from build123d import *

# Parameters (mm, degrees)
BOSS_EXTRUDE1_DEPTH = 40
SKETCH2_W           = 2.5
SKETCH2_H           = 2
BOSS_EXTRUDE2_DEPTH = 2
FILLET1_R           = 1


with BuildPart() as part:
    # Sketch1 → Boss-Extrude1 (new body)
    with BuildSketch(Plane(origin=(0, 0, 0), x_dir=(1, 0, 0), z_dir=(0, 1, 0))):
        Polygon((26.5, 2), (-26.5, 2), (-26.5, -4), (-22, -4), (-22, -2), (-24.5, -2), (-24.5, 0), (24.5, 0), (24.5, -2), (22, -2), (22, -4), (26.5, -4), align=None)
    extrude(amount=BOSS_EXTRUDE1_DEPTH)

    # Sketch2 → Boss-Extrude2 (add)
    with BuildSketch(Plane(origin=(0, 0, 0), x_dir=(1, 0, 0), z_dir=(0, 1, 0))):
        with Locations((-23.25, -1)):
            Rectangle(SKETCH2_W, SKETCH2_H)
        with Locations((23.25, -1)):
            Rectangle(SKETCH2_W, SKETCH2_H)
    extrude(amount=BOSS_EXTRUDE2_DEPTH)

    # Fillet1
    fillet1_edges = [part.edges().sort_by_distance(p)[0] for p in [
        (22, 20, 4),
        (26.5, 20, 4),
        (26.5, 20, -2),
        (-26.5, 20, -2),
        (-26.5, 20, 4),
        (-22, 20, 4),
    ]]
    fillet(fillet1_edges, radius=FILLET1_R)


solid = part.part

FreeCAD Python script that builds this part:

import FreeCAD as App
import Part
import Sketcher
from FreeCAD import Vector
Q = App.Units.Quantity


def edges_at(feature, points):
    """Names of the edges that pass closest to the given points."""
    edges = feature.Shape.Edges
    near = lambda p: min(range(len(edges)), key=lambda i: edges[i].distToShape(Part.Vertex(*p))[0])
    return sorted({f"Edge{near(p) + 1}" for p in points})

doc = App.newDocument("Part")
body = doc.addObject("PartDesign::Body", "Body")

sketch1 = doc.addObject("Sketcher::SketchObject", "Sketch")
body.addObject(sketch1)
sketch1.AttachmentSupport = (doc.XZ_Plane, [""])
sketch1.MapMode = "FlatFace"
sketch1.addGeometry(Part.LineSegment(Vector(26.5, -2, 0), Vector(-26.5, -2, 0)), False)
sketch1.addGeometry(Part.LineSegment(Vector(-26.5, -2, 0), Vector(-26.5, 4, 0)), False)
sketch1.addGeometry(Part.LineSegment(Vector(-26.5, 4, 0), Vector(-22, 4, 0)), False)
sketch1.addGeometry(Part.LineSegment(Vector(-22, 4, 0), Vector(-22, 2, 0)), False)
sketch1.addGeometry(Part.LineSegment(Vector(-22, 2, 0), Vector(-24.5, 2, 0)), False)
sketch1.addGeometry(Part.LineSegment(Vector(-24.5, 2, 0), Vector(-24.5, 0, 0)), False)
sketch1.addGeometry(Part.LineSegment(Vector(-24.5, 0, 0), Vector(24.5, 0, 0)), False)
sketch1.addGeometry(Part.LineSegment(Vector(24.5, 0, 0), Vector(24.5, 2, 0)), False)
sketch1.addGeometry(Part.LineSegment(Vector(24.5, 2, 0), Vector(22, 2, 0)), False)
sketch1.addGeometry(Part.LineSegment(Vector(22, 2, 0), Vector(22, 4, 0)), False)
sketch1.addGeometry(Part.LineSegment(Vector(22, 4, 0), Vector(26.5, 4, 0)), False)
sketch1.addGeometry(Part.LineSegment(Vector(26.5, 4, 0), Vector(26.5, -2, 0)), False)
sketch1.addConstraint(Sketcher.Constraint("Coincident", 0, 2, 1, 1))
sketch1.addConstraint(Sketcher.Constraint("Coincident", 1, 2, 2, 1))
sketch1.addConstraint(Sketcher.Constraint("Coincident", 2, 2, 3, 1))
sketch1.addConstraint(Sketcher.Constraint("Coincident", 3, 2, 4, 1))
sketch1.addConstraint(Sketcher.Constraint("Coincident", 4, 2, 5, 1))
sketch1.addConstraint(Sketcher.Constraint("Coincident", 5, 2, 6, 1))
sketch1.addConstraint(Sketcher.Constraint("Coincident", 6, 2, 7, 1))
sketch1.addConstraint(Sketcher.Constraint("Coincident", 7, 2, 8, 1))
sketch1.addConstraint(Sketcher.Constraint("Coincident", 8, 2, 9, 1))
sketch1.addConstraint(Sketcher.Constraint("Coincident", 9, 2, 10, 1))
sketch1.addConstraint(Sketcher.Constraint("Coincident", 10, 2, 11, 1))
sketch1.addConstraint(Sketcher.Constraint("Coincident", 11, 2, 0, 1))
sketch1.addConstraint(Sketcher.Constraint("Horizontal", 0))
sketch1.addConstraint(Sketcher.Constraint("Vertical", 1))
sketch1.addConstraint(Sketcher.Constraint("Horizontal", 2))
sketch1.addConstraint(Sketcher.Constraint("Vertical", 3))
sketch1.addConstraint(Sketcher.Constraint("Horizontal", 4))
sketch1.addConstraint(Sketcher.Constraint("Vertical", 5))
sketch1.addConstraint(Sketcher.Constraint("Horizontal", 6))
sketch1.addConstraint(Sketcher.Constraint("Vertical", 7))
sketch1.addConstraint(Sketcher.Constraint("Horizontal", 8))
sketch1.addConstraint(Sketcher.Constraint("Vertical", 9))
sketch1.addConstraint(Sketcher.Constraint("Horizontal", 10))
sketch1.addConstraint(Sketcher.Constraint("Vertical", 11))
sketch1.addConstraint(Sketcher.Constraint("Symmetric", 5, 2, 6, 2, -1, 1))
sketch1.addConstraint(Sketcher.Constraint("Symmetric", 3, 2, 8, 2, -2))
sketch1.addConstraint(Sketcher.Constraint("Symmetric", 1, 2, 10, 2, -2))
sketch1.addConstraint(Sketcher.Constraint("Equal", 3, 5))
sketch1.addConstraint(Sketcher.Constraint("DistanceX", 0, 2, 0, 1, Q("53 mm")))
sketch1.addConstraint(Sketcher.Constraint("DistanceX", 6, 1, 6, 2, Q("49 mm")))
sketch1.addConstraint(Sketcher.Constraint("DistanceY", 1, 1, 1, 2, Q("6 mm")))
sketch1.addConstraint(Sketcher.Constraint("DistanceY", 3, 2, 3, 1, Q("2 mm")))
sketch1.addConstraint(Sketcher.Constraint("DistanceX", 2, 1, 2, 2, Q("4.5 mm")))
pad1 = doc.addObject("PartDesign::Pad", "Pad")
body.addObject(pad1)
pad1.Profile = sketch1
pad1.Length = 40
pad1.Reversed = True

sketch2 = doc.addObject("Sketcher::SketchObject", "Sketch001")
body.addObject(sketch2)
sketch2.AttachmentSupport = (doc.XZ_Plane, [""])
sketch2.MapMode = "FlatFace"
sketch2.addGeometry(Part.LineSegment(Vector(-24.5, 0, 0), Vector(-24.5, 2, 0)), False)
sketch2.addGeometry(Part.LineSegment(Vector(-24.5, 2, 0), Vector(-22, 2, 0)), False)
sketch2.addGeometry(Part.LineSegment(Vector(-22, 2, 0), Vector(-22, 0, 0)), False)
sketch2.addGeometry(Part.LineSegment(Vector(-22, 0, 0), Vector(-24.5, 0, 0)), False)
sketch2.addGeometry(Part.LineSegment(Vector(22, 0, 0), Vector(22, 2, 0)), False)
sketch2.addGeometry(Part.LineSegment(Vector(22, 2, 0), Vector(24.5, 2, 0)), False)
sketch2.addGeometry(Part.LineSegment(Vector(24.5, 2, 0), Vector(24.5, 0, 0)), False)
sketch2.addGeometry(Part.LineSegment(Vector(24.5, 0, 0), Vector(22, 0, 0)), False)
sketch2.addConstraint(Sketcher.Constraint("Coincident", 0, 2, 1, 1))
sketch2.addConstraint(Sketcher.Constraint("Coincident", 1, 2, 2, 1))
sketch2.addConstraint(Sketcher.Constraint("Coincident", 2, 2, 3, 1))
sketch2.addConstraint(Sketcher.Constraint("Coincident", 3, 2, 0, 1))
sketch2.addConstraint(Sketcher.Constraint("Coincident", 4, 2, 5, 1))
sketch2.addConstraint(Sketcher.Constraint("Coincident", 5, 2, 6, 1))
sketch2.addConstraint(Sketcher.Constraint("Coincident", 6, 2, 7, 1))
sketch2.addConstraint(Sketcher.Constraint("Coincident", 7, 2, 4, 1))
sketch2.addConstraint(Sketcher.Constraint("Vertical", 0))
sketch2.addConstraint(Sketcher.Constraint("Horizontal", 1))
sketch2.addConstraint(Sketcher.Constraint("Vertical", 2))
sketch2.addConstraint(Sketcher.Constraint("Horizontal", 3))
sketch2.addConstraint(Sketcher.Constraint("Vertical", 4))
sketch2.addConstraint(Sketcher.Constraint("Horizontal", 5))
sketch2.addConstraint(Sketcher.Constraint("Vertical", 6))
sketch2.addConstraint(Sketcher.Constraint("Horizontal", 7))
sketch2.addConstraint(Sketcher.Constraint("Symmetric", 3, 2, 6, 2, -1, 1))
sketch2.addConstraint(Sketcher.Constraint("Symmetric", 1, 2, 4, 2, -2))
sketch2.addConstraint(Sketcher.Constraint("PointOnObject", 2, 2, -1))
sketch2.addConstraint(Sketcher.Constraint("DistanceY", 0, 1, 0, 2, Q("2 mm")))
sketch2.addConstraint(Sketcher.Constraint("DistanceX", 1, 1, 1, 2, Q("2.5 mm")))
sketch2.addConstraint(Sketcher.Constraint("DistanceX", 1, 2, -1, 1, Q("22 mm")))
pad2 = doc.addObject("PartDesign::Pad", "Pad001")
body.addObject(pad2)
pad2.Profile = sketch2
pad2.Length = 2
pad2.Reversed = True
doc.recompute()

fillet = doc.addObject("PartDesign::Fillet", "Fillet")
body.addObject(fillet)
fillet.Base = (pad2, edges_at(pad2, [
    (22, 20, 4),
    (26.5, 20, 4),
    (26.5, 20, -2),
    (-26.5, 20, -2),
    (-26.5, 20, 4),
    (-22, 20, 4),
]))
fillet.Radius = 1

doc.recompute()
